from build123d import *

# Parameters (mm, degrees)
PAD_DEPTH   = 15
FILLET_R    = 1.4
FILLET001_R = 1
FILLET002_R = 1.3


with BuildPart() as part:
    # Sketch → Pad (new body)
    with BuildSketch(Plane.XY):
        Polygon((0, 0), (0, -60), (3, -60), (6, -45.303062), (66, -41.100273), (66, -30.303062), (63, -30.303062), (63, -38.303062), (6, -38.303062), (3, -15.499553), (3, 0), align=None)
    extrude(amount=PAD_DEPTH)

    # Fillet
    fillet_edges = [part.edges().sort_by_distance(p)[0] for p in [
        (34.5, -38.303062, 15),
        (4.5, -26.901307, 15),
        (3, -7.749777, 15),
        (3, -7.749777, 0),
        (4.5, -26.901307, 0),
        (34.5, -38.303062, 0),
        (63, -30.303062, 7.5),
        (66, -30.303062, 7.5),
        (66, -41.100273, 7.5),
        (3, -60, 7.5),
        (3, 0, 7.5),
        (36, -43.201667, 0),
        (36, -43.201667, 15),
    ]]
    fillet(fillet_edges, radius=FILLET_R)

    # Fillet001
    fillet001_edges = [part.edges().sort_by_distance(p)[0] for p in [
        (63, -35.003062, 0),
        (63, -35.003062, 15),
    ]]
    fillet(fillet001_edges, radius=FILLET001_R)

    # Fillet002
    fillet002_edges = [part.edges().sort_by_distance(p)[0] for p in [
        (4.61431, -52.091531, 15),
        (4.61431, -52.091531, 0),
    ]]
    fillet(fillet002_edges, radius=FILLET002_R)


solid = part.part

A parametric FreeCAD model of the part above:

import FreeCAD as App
import Part
import Sketcher
from FreeCAD import Vector


def edges_at(feature, points):
    """Names of the edges that pass closest to the given points."""
    edges = feature.Shape.Edges
    near = lambda p: min(range(len(edges)), key=lambda i: edges[i].distToShape(Part.Vertex(*p))[0])
    return sorted({f"Edge{near(p) + 1}" for p in points})


def add_polygon(sketch, points):
    """Adds a closed chain of lines whose ends are joined by coincident constraints."""
    first, n = sketch.GeometryCount, len(points)
    for a, b in zip(points, points[1:] + points[:1]):
        sketch.addGeometry(Part.LineSegment(App.Vector(*a, 0), App.Vector(*b, 0)), False)
    for i in range(n):
        sketch.addConstraint(Sketcher.Constraint("Coincident", first + i, 2, first + (i + 1) % n, 1))

doc = App.newDocument("Part")
body = doc.addObject("PartDesign::Body", "Body")

# Sketch on XY plane
sketch1 = doc.addObject("Sketcher::SketchObject", "Sketch")
body.addObject(sketch1)
sketch1.AttachmentSupport = (doc.XY_Plane, [""])
sketch1.MapMode = "FlatFace"
add_polygon(sketch1, [(0, 0), (0, -60), (3, -60), (6, -45.3), (66, -41.1), (66, -30.3), (63, -30.3), (63, -38.3), (6, -38.3), (3, -15.5), (3, 0)])  # lines 0-10
sketch1.addConstraint([
    Sketcher.Constraint("Vertical", 0),
    Sketcher.Constraint("Horizontal", 1),
    Sketcher.Constraint("Vertical", 4),
    Sketcher.Constraint("Horizontal", 5),
    Sketcher.Constraint("Vertical", 6),
    Sketcher.Constraint("Horizontal", 7),
    Sketcher.Constraint("Vertical", 9),
    Sketcher.Constraint("Horizontal", 10),
    Sketcher.Constraint("Coincident", 10, 2, -1, 1),
    Sketcher.Constraint("Vertical", 2, 2, 7, 2),
    Sketcher.Constraint("Vertical", 1, 2, 8, 2),
    Sketcher.Constraint("Equal", 1, 5),
    Sketcher.Constraint("DistanceX", 1, 1, 1, 2, 3.0),
    Sketcher.Constraint("DistanceX", 7, 2, 7, 1, 57.0),
    Sketcher.Constraint("DistanceY", 0, 2, 0, 1, 60.0),
    Sketcher.Constraint("DistanceY", 6, 2, 6, 1, 8.0),
    Sketcher.Constraint("Distance", 2, 15.0),
    Sketcher.Constraint("Distance", 8, 23.0),
    Sketcher.Constraint("DistanceX", -1, 1, 2, 2, 6.0),
    Sketcher.Constraint("DistanceY", 2, 2, 4, 2, 15.0),
    Sketcher.Constraint("DistanceY", 4, 1, 4, 2, 10.797211),
])
pad1 = doc.addObject("PartDesign::Pad", "Pad")
body.addObject(pad1)
pad1.Profile = sketch1
pad1.Length = 15
doc.recompute()

fillet = doc.addObject("PartDesign::Fillet", "Fillet")
body.addObject(fillet)
fillet.Base = (pad1, edges_at(pad1, [
    (34.5, -38.303, 15),
    (4.5, -26.901, 15),
    (3, -7.75, 15),
    (3, -7.75, 0),
    (4.5, -26.901, 0),
    (34.5, -38.303, 0),
    (63, -30.303, 7.5),
    (66, -30.303, 7.5),
    (66, -41.1, 7.5),
    (3, -60, 7.5),
    (3, 0, 7.5),
    (36, -43.202, 0),
    (36, -43.202, 15),
]))
fillet.Radius = 1.4
doc.recompute()

fillet2 = doc.addObject("PartDesign::Fillet", "Fillet001")
body.addObject(fillet2)
fillet2.Base = (fillet, edges_at(fillet, [(63, -35.703, 0), (63, -35.703, 15)]))
fillet2.Radius = 1
doc.recompute()

fillet3 = doc.addObject("PartDesign::Fillet", "Fillet002")
body.addObject(fillet3)
fillet3.Base = (fillet2, edges_at(fillet2, [(4.76, -51.38, 15), (4.76, -51.38, 0)]))
fillet3.Radius = 1.3

doc.recompute()
